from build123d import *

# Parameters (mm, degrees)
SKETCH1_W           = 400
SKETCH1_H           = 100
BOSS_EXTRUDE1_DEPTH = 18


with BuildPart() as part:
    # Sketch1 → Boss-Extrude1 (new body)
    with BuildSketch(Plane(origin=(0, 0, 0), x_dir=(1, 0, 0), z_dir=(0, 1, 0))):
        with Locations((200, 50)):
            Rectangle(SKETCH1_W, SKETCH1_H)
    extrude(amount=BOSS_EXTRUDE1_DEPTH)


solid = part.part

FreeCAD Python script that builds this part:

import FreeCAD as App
import Part
import Sketcher

V = App.Vector
Q = App.Units.Quantity

doc = App.newDocument("Part")
body = doc.addObject("PartDesign::Body", "Body")

# Sketch on XZ plane
sketch1 = body.newObject("Sketcher::SketchObject", "Sketch")
sketch1.AttachmentSupport = (doc.getObject("XZ_Plane"), [""])
sketch1.MapMode = "FlatFace"
sketch1.addGeometry([
    Part.LineSegment(V(0, -100, 0), V(0, 0, 0)),
    Part.LineSegment(V(0, 0, 0), V(400, 0, 0)),
    Part.LineSegment(V(400, 0, 0), V(400, -100, 0)),
    Part.LineSegment(V(400, -100, 0), V(0, -100, 0)),
], False)
sketch1.addConstraint([
    Sketcher.Constraint("Coincident", 0, 2, 1, 1),
    Sketcher.Constraint("Coincident", 1, 2, 2, 1),
    Sketcher.Constraint("Coincident", 2, 2, 3, 1),
    Sketcher.Constraint("Coincident", 3, 2, 0, 1),
    Sketcher.Constraint("Vertical", 0),
    Sketcher.Constraint("Horizontal", 1),
    Sketcher.Constraint("Vertical", 2),
    Sketcher.Constraint("Horizontal", 3),
    Sketcher.Constraint("Coincident", 0, 2, -1, 1),
    Sketcher.Constraint("DistanceX", 1, 1, 1, 2, Q("400 mm")),
    Sketcher.Constraint("DistanceY", 0, 1, 0, 2, Q("100 mm")),
])
pad1 = body.newObject("PartDesign::Pad", "Pad")
pad1.Profile = sketch1
pad1.Length = 18
pad1.Reversed = True

doc.recompute()
